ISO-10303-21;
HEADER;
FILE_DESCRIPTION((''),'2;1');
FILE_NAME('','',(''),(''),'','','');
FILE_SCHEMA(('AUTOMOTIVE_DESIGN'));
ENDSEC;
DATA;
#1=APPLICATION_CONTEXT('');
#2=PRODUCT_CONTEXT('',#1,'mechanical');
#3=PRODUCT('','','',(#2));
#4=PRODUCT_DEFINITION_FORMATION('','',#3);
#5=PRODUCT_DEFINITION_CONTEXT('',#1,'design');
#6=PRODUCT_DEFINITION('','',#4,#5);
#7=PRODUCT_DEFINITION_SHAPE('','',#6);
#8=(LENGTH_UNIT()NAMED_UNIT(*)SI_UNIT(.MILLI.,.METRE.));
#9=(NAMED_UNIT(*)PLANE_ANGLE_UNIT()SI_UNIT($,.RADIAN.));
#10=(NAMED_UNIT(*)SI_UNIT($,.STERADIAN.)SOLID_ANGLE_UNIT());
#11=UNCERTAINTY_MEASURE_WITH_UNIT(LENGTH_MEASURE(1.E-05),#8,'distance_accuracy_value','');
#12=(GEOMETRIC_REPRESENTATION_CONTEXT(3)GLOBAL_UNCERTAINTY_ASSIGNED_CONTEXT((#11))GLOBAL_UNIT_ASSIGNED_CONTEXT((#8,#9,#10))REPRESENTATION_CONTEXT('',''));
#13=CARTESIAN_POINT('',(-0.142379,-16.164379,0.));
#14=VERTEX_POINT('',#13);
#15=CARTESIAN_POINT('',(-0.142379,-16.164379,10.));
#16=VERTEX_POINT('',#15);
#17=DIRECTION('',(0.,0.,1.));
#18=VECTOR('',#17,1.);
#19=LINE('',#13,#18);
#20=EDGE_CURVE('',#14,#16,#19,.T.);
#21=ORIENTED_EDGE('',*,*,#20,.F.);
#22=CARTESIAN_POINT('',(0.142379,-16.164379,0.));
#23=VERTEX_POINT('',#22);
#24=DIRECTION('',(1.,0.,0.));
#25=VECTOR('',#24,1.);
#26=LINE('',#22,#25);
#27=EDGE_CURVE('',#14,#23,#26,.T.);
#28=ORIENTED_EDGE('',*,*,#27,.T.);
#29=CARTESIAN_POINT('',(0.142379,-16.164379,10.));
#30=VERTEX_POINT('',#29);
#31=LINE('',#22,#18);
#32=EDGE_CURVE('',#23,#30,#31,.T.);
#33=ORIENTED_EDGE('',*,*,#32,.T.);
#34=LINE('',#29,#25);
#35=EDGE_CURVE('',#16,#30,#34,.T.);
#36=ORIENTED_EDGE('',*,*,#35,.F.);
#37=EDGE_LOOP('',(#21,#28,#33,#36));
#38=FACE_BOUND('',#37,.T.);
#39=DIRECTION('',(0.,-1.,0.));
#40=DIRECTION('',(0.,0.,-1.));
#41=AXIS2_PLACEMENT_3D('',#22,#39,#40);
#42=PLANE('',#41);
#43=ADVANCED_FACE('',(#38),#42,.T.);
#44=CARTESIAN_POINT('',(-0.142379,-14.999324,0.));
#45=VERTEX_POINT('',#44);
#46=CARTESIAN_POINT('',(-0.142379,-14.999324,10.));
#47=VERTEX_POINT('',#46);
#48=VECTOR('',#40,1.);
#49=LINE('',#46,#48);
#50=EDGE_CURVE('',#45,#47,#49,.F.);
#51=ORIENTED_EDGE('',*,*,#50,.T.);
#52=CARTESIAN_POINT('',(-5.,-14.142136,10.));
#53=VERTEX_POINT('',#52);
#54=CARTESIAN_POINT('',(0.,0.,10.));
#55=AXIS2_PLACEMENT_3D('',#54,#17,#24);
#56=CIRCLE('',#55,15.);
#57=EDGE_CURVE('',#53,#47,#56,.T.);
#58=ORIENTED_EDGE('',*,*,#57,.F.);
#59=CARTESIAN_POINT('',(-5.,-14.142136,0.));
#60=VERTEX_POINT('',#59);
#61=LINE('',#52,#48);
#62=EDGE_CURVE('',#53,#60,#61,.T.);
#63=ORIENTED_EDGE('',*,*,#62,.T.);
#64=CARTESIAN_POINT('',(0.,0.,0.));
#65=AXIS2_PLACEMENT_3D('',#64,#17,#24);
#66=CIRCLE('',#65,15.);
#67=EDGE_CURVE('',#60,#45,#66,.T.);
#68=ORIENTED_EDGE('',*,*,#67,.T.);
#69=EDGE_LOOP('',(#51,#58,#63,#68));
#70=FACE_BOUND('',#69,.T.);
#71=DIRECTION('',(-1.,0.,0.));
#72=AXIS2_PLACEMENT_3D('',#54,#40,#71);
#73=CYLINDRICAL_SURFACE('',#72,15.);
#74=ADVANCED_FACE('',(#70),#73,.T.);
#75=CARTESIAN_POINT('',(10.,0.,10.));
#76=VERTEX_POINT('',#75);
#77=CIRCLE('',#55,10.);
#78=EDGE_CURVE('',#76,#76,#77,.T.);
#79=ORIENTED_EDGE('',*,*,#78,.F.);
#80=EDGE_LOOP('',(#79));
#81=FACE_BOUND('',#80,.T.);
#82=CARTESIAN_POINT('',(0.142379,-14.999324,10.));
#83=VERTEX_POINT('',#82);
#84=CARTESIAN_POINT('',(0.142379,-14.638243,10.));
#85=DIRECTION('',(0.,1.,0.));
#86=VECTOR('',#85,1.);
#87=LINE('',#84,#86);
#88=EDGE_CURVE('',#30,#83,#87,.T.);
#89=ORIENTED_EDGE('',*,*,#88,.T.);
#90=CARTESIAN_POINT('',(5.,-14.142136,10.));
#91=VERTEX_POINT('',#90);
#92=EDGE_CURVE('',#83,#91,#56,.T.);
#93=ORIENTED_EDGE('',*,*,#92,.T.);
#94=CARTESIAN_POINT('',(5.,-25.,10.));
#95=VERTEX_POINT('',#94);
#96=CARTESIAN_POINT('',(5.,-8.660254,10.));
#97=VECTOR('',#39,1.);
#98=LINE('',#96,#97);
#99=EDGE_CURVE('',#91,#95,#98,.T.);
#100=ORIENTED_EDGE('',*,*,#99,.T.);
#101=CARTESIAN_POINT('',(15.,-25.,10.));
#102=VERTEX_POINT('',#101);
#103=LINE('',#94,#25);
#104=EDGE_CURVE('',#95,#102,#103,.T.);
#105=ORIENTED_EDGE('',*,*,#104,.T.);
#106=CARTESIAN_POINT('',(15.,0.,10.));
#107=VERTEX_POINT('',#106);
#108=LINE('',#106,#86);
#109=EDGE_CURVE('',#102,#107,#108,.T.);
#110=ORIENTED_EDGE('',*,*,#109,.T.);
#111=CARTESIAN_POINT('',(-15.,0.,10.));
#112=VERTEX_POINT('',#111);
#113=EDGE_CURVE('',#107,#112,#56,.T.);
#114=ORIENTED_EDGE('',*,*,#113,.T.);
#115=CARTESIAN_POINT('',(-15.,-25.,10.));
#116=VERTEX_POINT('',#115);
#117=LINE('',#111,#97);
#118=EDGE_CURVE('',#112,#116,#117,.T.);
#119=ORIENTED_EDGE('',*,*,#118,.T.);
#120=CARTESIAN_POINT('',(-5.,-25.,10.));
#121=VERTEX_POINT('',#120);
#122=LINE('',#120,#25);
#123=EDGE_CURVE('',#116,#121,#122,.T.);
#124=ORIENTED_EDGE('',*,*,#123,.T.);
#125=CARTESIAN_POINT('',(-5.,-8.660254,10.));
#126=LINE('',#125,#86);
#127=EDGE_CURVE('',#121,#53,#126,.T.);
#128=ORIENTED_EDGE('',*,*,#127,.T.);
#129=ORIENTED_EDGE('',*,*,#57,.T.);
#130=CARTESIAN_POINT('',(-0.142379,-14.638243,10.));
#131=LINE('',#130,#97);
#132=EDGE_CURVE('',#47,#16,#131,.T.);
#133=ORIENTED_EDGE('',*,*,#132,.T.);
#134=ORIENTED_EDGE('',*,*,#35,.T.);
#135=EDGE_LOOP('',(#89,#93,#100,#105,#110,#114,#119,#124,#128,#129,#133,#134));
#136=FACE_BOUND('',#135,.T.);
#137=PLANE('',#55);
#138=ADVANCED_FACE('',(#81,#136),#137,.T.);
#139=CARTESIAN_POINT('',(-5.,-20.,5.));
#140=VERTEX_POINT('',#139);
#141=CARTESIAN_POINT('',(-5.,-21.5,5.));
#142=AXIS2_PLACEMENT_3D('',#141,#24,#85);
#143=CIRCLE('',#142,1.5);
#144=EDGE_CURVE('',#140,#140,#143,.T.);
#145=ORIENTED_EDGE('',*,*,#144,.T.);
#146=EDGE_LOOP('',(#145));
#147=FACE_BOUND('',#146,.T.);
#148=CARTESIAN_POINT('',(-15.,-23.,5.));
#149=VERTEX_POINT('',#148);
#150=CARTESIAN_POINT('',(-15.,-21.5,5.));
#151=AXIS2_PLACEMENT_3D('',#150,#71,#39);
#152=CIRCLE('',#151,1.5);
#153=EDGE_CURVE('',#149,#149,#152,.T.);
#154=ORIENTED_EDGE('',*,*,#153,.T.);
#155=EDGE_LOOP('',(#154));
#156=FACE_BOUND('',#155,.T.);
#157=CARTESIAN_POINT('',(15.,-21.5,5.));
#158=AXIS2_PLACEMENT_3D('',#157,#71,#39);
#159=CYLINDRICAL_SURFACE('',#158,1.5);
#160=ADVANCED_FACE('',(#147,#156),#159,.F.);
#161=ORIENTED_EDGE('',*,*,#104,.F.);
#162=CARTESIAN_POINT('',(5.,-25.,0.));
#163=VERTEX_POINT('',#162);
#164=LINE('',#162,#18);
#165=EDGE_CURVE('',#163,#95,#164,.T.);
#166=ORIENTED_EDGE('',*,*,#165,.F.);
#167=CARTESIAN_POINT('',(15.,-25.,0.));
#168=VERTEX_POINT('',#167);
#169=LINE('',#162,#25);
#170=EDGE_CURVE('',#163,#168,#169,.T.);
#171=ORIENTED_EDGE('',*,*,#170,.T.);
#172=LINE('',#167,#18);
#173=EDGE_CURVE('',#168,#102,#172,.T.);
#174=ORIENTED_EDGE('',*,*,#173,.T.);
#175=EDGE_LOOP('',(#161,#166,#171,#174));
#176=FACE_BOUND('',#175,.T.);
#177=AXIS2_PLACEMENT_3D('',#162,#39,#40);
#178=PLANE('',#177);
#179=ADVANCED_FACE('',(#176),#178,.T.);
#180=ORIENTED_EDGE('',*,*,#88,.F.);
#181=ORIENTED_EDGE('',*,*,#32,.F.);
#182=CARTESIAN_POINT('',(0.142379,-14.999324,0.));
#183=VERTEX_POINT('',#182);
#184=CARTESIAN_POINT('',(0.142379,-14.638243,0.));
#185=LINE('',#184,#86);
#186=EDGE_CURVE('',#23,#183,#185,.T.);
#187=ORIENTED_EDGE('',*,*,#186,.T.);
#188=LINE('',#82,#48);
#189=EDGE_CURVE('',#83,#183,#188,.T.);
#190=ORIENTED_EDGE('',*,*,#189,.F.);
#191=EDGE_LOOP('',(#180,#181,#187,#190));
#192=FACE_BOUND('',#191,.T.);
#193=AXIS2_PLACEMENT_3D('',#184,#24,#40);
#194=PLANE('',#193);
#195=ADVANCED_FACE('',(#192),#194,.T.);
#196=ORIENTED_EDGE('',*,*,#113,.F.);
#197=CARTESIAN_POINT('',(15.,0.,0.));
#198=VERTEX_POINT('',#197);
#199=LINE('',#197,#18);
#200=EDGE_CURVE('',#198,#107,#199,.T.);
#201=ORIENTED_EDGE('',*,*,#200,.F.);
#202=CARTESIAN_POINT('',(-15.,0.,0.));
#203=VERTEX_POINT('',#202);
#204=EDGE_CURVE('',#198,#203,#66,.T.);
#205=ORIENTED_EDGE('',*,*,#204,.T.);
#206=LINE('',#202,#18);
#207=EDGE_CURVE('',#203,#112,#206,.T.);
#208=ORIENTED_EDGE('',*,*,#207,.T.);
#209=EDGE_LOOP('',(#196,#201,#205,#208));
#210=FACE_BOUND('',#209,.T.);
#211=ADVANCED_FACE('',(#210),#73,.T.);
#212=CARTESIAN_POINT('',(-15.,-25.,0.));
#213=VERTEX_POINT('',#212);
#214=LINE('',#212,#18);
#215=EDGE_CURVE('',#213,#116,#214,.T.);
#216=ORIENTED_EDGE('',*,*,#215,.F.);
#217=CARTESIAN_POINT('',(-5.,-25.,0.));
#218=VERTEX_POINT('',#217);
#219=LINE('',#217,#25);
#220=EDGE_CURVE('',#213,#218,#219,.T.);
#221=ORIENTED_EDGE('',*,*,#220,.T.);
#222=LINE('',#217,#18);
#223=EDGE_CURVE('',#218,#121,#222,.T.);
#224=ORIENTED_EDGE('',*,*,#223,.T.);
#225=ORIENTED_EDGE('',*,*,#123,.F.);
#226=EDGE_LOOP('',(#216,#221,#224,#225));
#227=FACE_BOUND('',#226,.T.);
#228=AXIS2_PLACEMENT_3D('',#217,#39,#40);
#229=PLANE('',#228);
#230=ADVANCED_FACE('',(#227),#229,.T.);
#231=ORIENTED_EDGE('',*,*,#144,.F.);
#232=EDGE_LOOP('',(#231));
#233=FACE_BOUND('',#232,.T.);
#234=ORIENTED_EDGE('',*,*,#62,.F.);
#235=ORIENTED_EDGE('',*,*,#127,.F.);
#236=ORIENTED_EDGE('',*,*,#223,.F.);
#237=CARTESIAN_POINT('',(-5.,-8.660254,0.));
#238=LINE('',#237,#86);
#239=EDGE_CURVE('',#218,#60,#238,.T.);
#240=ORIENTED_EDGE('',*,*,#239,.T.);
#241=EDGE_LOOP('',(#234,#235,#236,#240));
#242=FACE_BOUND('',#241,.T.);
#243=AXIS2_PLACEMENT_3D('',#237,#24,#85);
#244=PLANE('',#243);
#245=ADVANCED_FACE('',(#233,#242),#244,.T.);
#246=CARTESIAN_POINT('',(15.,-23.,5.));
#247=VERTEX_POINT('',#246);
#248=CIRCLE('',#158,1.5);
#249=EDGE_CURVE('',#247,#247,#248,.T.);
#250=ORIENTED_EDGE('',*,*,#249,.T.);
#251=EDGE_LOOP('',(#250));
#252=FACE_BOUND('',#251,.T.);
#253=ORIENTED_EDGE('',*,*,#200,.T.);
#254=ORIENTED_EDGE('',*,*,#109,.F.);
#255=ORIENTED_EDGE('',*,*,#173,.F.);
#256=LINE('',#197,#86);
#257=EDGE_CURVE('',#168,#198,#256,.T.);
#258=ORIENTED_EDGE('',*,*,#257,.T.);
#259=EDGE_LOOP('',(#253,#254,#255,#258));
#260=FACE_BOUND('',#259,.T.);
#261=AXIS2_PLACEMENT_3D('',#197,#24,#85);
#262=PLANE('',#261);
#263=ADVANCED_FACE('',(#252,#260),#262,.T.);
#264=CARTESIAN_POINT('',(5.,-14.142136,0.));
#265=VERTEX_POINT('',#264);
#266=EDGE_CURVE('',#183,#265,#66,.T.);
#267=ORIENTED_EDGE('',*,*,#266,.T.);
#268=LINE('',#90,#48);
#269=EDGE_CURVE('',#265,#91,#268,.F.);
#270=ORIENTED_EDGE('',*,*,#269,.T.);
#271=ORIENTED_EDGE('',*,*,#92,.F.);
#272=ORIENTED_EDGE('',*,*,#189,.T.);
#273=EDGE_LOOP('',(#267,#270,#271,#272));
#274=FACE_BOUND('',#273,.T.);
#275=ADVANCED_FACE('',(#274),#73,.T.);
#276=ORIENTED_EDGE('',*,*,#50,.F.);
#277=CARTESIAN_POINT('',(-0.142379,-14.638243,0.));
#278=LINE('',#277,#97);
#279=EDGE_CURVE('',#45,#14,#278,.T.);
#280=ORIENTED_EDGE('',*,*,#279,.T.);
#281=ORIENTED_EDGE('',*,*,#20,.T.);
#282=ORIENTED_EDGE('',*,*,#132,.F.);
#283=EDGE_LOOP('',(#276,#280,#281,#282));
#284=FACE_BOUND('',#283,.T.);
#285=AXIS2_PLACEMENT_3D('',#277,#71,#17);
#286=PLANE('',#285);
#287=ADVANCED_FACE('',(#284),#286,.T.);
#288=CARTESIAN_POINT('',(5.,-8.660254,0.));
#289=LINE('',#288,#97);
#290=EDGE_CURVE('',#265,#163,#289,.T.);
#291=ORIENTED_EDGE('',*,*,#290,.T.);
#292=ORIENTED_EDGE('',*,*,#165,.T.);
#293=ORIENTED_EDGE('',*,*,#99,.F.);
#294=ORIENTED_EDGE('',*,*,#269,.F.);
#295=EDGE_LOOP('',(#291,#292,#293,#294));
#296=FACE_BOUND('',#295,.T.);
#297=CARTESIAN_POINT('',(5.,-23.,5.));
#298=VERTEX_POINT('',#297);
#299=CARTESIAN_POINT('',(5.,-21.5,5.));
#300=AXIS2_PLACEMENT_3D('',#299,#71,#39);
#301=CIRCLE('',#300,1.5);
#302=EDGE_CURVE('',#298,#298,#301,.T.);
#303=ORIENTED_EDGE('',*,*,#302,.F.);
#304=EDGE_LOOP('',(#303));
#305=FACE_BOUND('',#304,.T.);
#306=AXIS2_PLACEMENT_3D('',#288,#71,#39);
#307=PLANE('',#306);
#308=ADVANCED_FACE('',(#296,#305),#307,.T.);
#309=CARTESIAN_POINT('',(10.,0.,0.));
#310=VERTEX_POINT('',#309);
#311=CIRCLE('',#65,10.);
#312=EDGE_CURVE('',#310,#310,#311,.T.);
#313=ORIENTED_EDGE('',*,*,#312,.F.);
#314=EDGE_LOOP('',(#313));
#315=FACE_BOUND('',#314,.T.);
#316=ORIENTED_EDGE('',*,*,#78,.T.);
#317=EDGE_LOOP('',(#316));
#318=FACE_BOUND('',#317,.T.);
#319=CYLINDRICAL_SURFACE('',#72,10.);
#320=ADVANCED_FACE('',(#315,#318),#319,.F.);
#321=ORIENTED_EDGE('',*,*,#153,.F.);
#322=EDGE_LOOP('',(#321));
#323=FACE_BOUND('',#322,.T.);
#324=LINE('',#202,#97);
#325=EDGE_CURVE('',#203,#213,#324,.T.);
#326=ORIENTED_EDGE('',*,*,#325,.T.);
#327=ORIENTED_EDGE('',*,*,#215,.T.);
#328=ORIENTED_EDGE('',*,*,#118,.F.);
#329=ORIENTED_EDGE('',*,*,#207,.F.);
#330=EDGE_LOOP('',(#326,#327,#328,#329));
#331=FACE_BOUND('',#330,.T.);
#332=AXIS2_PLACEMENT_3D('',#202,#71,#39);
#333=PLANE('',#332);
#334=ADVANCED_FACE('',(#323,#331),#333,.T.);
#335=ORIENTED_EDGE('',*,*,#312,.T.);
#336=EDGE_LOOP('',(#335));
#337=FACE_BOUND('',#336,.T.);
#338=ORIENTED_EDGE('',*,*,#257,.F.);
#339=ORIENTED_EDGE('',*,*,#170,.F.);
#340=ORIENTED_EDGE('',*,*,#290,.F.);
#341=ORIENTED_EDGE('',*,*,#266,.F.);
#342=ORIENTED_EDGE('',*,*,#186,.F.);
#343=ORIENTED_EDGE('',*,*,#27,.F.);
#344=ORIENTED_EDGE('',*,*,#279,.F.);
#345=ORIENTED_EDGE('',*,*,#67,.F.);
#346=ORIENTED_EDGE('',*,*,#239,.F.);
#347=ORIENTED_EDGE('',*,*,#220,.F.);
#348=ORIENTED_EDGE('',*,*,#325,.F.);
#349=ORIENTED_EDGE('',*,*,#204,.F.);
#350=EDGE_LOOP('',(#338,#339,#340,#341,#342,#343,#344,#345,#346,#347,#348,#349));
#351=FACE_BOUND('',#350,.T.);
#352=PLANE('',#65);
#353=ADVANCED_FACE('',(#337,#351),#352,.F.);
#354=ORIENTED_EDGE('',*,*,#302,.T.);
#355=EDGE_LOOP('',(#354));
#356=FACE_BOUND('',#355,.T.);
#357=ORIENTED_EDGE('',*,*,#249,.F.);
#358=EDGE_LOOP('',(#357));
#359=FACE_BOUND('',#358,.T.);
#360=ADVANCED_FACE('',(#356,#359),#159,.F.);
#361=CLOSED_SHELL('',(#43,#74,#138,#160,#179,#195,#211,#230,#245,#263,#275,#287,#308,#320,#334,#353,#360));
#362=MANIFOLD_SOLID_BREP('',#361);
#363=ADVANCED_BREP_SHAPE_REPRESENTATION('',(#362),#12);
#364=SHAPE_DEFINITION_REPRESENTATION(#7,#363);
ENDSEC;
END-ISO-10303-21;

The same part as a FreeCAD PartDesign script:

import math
import FreeCAD as App
import Part
import Sketcher

V = App.Vector

doc = App.newDocument("Part")
params = doc.addObject("Spreadsheet::Sheet", "Params")
for row, (alias, value) in enumerate([
    ("sketch1_diameter", "30 mm"),
    ("sketch1_diameter2", "20 mm"),
    ("pad1_length", "10 mm"),
    ("sketch2_radius", "10 mm"),
    ("sketch2_width", "5 mm"),
    ("sketch2_width2", "10 mm"),
    ("sketch2_height", "25 mm"),
    ("pad2_length", "10 mm"),
    ("sketch3_diameter", "3 mm"),
], start=1):
    params.set(f"A{row}", alias)
    params.set(f"B{row}", "=" + value)
    params.setAlias(f"B{row}", alias)

body = doc.addObject("PartDesign::Body", "Body")

sketch1 = body.newObject("Sketcher::SketchObject", "Sketch")
sketch1.AttachmentSupport = (doc.getObject("XY_Plane"), [""])
sketch1.MapMode = "FlatFace"
sketch1.addGeometry(Part.Circle(V(0, 0, 0), V(0, 0, 1), 15), False)
sketch1.addGeometry(Part.Circle(V(0, 0, 0), V(0, 0, 1), 10), False)
sketch1.addConstraint(Sketcher.Constraint("Coincident", 0, 3, -1, 1))
sketch1.addConstraint(Sketcher.Constraint("Coincident", 1, 3, -1, 1))
sketch1.addConstraint(Sketcher.Constraint("Diameter", 0, 30.0))
sketch1.addConstraint(Sketcher.Constraint("Diameter", 1, 20.0))
sketch1.setExpression("Constraints[2]", "Params.sketch1_diameter")
sketch1.setExpression("Constraints[3]", "Params.sketch1_diameter2")
pad1 = body.newObject("PartDesign::Pad", "Pad")
pad1.Profile = sketch1
pad1.setExpression("Length", "Params.pad1_length")

sketch2 = body.newObject("Sketcher::SketchObject", "Sketch001")
sketch2.AttachmentSupport = (doc.getObject("XY_Plane"), [""])
sketch2.MapMode = "FlatFace"
sketch2.addGeometry(Part.LineSegment(V(15, -25, 0), V(15, 0, 0)), False)
sketch2.addGeometry(Part.LineSegment(V(15, 0, 0), V(10, 0, 0)), False)
sketch2.addGeometry(Part.ArcOfCircle(Part.Circle(V(0, 0, 0), V(0, 0, 1), 10), math.radians(-60), math.radians(0)), False)
sketch2.addGeometry(Part.LineSegment(V(5, -8.66, 0), V(5, -25, 0)), False)
sketch2.addGeometry(Part.LineSegment(V(5, -25, 0), V(15, -25, 0)), False)
sketch2.addGeometry(Part.LineSegment(V(-0.14, -14.64, 0), V(-0.14, -16.16, 0)), False)
sketch2.addGeometry(Part.LineSegment(V(-0.14, -16.16, 0), V(0.14, -16.16, 0)), False)
sketch2.addGeometry(Part.LineSegment(V(0.14, -16.16, 0), V(0.14, -14.64, 0)), False)
sketch2.addGeometry(Part.LineSegment(V(0.14, -14.64, 0), V(-0.14, -14.64, 0)), False)
sketch2.addGeometry(Part.LineSegment(V(-10, 0, 0), V(-15, 0, 0)), False)
sketch2.addGeometry(Part.LineSegment(V(-15, 0, 0), V(-15, -25, 0)), False)
sketch2.addGeometry(Part.LineSegment(V(-15, -25, 0), V(-5, -25, 0)), False)
sketch2.addGeometry(Part.LineSegment(V(-5, -25, 0), V(-5, -8.66, 0)), False)
sketch2.addGeometry(Part.ArcOfCircle(Part.Circle(V(0, 0, 0), V(0, 0, 1), 10), math.radians(180), math.radians(240)), False)
sketch2.addConstraint(Sketcher.Constraint("Coincident", 0, 2, 1, 1))
sketch2.addConstraint(Sketcher.Constraint("Coincident", 1, 2, 2, 2))
sketch2.addConstraint(Sketcher.Constraint("Coincident", 2, 1, 3, 1))
sketch2.addConstraint(Sketcher.Constraint("Coincident", 3, 2, 4, 1))
sketch2.addConstraint(Sketcher.Constraint("Coincident", 4, 2, 0, 1))
sketch2.addConstraint(Sketcher.Constraint("Coincident", 5, 2, 6, 1))
sketch2.addConstraint(Sketcher.Constraint("Coincident", 6, 2, 7, 1))
sketch2.addConstraint(Sketcher.Constraint("Coincident", 7, 2, 8, 1))
sketch2.addConstraint(Sketcher.Constraint("Coincident", 8, 2, 5, 1))
sketch2.addConstraint(Sketcher.Constraint("Coincident", 9, 2, 10, 1))
sketch2.addConstraint(Sketcher.Constraint("Coincident", 10, 2, 11, 1))
sketch2.addConstraint(Sketcher.Constraint("Coincident", 11, 2, 12, 1))
sketch2.addConstraint(Sketcher.Constraint("Coincident", 12, 2, 13, 2))
sketch2.addConstraint(Sketcher.Constraint("Coincident", 13, 1, 9, 1))
sketch2.addConstraint(Sketcher.Constraint("Vertical", 0))
sketch2.addConstraint(Sketcher.Constraint("Horizontal", 1))
sketch2.addConstraint(Sketcher.Constraint("Vertical", 3))
sketch2.addConstraint(Sketcher.Constraint("Horizontal", 4))
sketch2.addConstraint(Sketcher.Constraint("Vertical", 5))
sketch2.addConstraint(Sketcher.Constraint("Horizontal", 6))
sketch2.addConstraint(Sketcher.Constraint("Vertical", 7))
sketch2.addConstraint(Sketcher.Constraint("Horizontal", 8))
sketch2.addConstraint(Sketcher.Constraint("Horizontal", 9))
sketch2.addConstraint(Sketcher.Constraint("Vertical", 10))
sketch2.addConstraint(Sketcher.Constraint("Horizontal", 11))
sketch2.addConstraint(Sketcher.Constraint("Vertical", 12))
sketch2.addConstraint(Sketcher.Constraint("Coincident", 2, 3, -1, 1))
sketch2.addConstraint(Sketcher.Constraint("Coincident", 13, 3, -1, 1))
sketch2.addConstraint(Sketcher.Constraint("Equal", 2, 13))
sketch2.addConstraint(Sketcher.Constraint("Symmetric", 0, 2, 9, 2, -1, 1))
sketch2.addConstraint(Sketcher.Constraint("Symmetric", 3, 2, 11, 2, -2))
sketch2.addConstraint(Sketcher.Constraint("PointOnObject", 0, 2, -1))
sketch2.addConstraint(Sketcher.Constraint("Radius", 2, 10.0))
sketch2.addConstraint(Sketcher.Constraint("DistanceX", 1, 2, 1, 1, 5.0))
sketch2.addConstraint(Sketcher.Constraint("DistanceX", 4, 1, 4, 2, 10.0))
sketch2.addConstraint(Sketcher.Constraint("DistanceY", 0, 1, 0, 2, 25.0))
sketch2.addConstraint(Sketcher.Constraint("DistanceX", 6, 1, 6, 2, 0.284758))
sketch2.addConstraint(Sketcher.Constraint("DistanceY", 5, 2, 5, 1, 1.526136))
sketch2.addConstraint(Sketcher.Constraint("DistanceX", 5, 2, -1, 1, 0.142379))
sketch2.addConstraint(Sketcher.Constraint("DistanceY", 5, 2, -1, 1, 16.164379))
sketch2.setExpression("Constraints[32]", "Params.sketch2_radius")
sketch2.setExpression("Constraints[33]", "Params.sketch2_width")
sketch2.setExpression("Constraints[34]", "Params.sketch2_width2")
sketch2.setExpression("Constraints[35]", "Params.sketch2_height")
pad2 = body.newObject("PartDesign::Pad", "Pad001")
pad2.Profile = sketch2
pad2.setExpression("Length", "Params.pad2_length")

sketch3 = body.newObject("Sketcher::SketchObject", "Sketch002")
sketch3.AttachmentSupport = (doc.getObject("YZ_Plane"), [""])
sketch3.MapMode = "FlatFace"
sketch3.AttachmentOffset = App.Placement(V(0, 0, -15), App.Rotation())
sketch3.addGeometry(Part.Circle(V(-21.5, 5, 0), V(0, 0, 1), 1.5), False)
sketch3.addConstraint(Sketcher.Constraint("Diameter", 0, 3.0))
sketch3.addConstraint(Sketcher.Constraint("DistanceY", -1, 1, 0, 3, 5.0))
sketch3.addConstraint(Sketcher.Constraint("DistanceX", 0, 3, -1, 1, 21.5))
sketch3.setExpression("Constraints[0]", "Params.sketch3_diameter")
pocket1 = body.newObject("PartDesign::Pocket", "Pocket")
pocket1.Profile = sketch3
pocket1.Type = "ThroughAll"
pocket1.Reversed = True

doc.recompute()
